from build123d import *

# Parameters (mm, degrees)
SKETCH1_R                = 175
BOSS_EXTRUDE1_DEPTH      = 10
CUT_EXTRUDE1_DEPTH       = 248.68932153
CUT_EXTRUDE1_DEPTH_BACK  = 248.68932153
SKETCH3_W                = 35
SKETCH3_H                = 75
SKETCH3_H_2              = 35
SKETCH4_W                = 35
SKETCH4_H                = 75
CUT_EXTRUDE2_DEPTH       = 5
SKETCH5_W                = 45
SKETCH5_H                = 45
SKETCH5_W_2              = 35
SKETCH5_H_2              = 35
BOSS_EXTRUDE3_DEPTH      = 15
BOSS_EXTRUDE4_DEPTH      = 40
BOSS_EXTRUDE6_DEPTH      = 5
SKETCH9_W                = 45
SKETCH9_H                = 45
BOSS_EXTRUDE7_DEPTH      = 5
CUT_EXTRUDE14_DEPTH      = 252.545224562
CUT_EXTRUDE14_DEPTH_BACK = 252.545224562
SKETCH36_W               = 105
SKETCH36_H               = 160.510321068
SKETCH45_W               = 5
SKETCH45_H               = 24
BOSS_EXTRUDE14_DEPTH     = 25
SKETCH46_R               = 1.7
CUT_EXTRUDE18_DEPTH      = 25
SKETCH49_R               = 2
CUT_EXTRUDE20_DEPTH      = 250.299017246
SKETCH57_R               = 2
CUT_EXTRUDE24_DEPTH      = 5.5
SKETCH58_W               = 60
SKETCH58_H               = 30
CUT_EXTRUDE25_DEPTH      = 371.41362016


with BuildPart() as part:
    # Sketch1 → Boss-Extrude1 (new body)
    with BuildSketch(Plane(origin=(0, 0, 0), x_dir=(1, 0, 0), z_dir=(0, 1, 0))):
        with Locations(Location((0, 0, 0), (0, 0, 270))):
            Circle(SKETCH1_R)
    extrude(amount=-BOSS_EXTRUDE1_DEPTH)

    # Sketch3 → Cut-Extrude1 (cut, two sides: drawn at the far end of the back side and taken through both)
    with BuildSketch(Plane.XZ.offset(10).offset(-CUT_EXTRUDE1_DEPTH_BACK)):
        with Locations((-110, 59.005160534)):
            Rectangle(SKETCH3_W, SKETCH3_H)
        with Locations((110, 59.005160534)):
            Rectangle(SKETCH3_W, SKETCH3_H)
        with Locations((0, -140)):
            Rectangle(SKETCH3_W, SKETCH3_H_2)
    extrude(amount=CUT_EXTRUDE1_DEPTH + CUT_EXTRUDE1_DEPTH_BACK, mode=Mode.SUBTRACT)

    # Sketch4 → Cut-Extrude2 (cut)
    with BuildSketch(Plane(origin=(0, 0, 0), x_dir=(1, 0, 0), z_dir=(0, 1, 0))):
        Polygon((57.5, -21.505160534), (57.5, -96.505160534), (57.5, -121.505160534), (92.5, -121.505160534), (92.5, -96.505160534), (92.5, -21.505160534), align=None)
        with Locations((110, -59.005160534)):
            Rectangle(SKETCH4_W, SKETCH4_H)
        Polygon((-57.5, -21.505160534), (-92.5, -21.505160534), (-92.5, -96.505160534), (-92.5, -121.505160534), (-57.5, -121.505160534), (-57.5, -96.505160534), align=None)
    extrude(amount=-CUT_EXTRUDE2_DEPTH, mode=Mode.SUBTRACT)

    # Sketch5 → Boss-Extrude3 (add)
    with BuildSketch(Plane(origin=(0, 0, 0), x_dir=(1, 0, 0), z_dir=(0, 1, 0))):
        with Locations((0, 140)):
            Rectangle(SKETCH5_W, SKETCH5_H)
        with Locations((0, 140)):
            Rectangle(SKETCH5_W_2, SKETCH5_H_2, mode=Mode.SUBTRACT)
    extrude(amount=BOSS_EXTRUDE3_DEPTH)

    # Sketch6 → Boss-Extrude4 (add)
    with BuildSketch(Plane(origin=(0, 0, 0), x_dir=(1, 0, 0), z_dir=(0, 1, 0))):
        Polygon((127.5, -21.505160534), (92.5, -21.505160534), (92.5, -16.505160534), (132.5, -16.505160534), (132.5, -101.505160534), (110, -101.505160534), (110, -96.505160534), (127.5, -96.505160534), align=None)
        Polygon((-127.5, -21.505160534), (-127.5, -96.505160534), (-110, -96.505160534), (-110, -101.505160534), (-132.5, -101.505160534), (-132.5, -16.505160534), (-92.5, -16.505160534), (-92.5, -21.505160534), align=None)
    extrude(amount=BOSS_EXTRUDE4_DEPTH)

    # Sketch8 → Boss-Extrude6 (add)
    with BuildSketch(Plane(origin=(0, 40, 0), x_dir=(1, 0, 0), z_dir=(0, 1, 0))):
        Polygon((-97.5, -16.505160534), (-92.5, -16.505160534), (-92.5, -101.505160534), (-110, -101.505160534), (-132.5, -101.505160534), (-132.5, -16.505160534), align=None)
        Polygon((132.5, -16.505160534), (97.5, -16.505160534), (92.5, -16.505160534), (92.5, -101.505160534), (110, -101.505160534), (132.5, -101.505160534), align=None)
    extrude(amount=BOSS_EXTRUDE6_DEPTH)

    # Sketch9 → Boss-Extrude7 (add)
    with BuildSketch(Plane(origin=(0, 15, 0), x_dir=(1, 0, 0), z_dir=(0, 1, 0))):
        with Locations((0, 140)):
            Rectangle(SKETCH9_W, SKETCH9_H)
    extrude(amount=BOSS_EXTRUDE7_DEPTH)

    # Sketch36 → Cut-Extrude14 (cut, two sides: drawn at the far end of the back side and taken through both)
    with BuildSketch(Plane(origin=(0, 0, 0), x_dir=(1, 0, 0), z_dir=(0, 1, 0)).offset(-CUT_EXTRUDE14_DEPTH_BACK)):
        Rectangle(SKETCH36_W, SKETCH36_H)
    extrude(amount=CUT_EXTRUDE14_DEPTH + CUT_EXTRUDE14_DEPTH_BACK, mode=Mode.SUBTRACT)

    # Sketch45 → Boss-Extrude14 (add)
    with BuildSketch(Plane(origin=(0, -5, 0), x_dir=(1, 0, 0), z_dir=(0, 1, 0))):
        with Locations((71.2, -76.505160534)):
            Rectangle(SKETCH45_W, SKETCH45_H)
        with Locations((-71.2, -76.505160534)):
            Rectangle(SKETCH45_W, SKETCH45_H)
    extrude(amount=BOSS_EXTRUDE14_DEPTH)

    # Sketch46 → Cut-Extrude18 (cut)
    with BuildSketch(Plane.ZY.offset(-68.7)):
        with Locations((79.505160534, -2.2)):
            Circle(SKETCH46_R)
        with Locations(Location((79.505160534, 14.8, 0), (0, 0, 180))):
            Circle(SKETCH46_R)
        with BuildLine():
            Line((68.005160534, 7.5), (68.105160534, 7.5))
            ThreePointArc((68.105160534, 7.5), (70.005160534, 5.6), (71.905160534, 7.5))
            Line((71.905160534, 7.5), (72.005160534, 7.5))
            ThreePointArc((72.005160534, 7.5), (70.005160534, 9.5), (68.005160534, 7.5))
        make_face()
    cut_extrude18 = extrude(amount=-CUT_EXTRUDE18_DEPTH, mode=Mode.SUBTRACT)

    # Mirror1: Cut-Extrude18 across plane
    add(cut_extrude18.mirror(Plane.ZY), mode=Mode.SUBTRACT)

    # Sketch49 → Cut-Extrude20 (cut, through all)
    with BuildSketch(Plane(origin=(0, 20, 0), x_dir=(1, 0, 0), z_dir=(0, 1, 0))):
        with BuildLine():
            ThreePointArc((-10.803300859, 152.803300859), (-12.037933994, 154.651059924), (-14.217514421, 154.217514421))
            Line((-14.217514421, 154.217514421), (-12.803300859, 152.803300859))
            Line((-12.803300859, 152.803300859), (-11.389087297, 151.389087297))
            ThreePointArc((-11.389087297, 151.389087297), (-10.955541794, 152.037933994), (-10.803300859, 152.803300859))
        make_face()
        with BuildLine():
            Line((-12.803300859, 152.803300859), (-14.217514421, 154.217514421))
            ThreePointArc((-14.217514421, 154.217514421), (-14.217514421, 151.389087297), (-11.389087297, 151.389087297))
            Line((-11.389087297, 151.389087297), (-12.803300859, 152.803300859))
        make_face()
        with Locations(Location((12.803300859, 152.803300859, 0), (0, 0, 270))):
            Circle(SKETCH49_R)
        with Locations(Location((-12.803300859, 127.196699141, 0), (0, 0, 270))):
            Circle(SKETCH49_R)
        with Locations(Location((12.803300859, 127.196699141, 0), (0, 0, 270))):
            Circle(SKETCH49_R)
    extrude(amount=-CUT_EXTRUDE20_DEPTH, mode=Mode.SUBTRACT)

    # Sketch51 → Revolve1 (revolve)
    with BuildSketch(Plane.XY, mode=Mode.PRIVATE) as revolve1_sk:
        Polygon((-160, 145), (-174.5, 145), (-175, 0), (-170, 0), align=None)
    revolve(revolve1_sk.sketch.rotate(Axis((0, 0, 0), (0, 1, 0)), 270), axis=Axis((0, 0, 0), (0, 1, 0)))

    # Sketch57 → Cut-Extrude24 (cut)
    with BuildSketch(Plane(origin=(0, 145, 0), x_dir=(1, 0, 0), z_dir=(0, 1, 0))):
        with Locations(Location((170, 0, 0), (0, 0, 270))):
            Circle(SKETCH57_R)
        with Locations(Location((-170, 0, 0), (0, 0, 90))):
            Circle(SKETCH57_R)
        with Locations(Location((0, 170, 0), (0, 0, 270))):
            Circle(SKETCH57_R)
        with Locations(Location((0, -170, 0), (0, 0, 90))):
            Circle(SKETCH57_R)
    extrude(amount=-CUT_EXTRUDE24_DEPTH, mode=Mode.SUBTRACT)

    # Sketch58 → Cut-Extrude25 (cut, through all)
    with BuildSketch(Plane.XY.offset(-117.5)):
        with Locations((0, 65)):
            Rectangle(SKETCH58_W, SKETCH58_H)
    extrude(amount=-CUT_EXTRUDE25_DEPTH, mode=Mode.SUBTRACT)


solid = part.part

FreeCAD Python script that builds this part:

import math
import FreeCAD as App
import Part
import Sketcher
from FreeCAD import Vector

doc = App.newDocument("Part")
body = doc.addObject("PartDesign::Body", "Body")

sketch1 = body.newObject("Sketcher::SketchObject", "Sketch")
sketch1.AttachmentSupport = (doc.getObject("XZ_Plane"), [""])
sketch1.MapMode = "FlatFace"
sketch1.addGeometry(Part.Circle(Vector(0, 0, 0), Vector(0, 0, 1), 175), False)
sketch1.addConstraint(Sketcher.Constraint("Coincident", 0, 3, -1, 1))
sketch1.addConstraint(Sketcher.Constraint("Diameter", 0, 350.0))
pad1 = body.newObject("PartDesign::Pad", "Pad")
pad1.Profile = sketch1
pad1.Length = 10

sketch2 = body.newObject("Sketcher::SketchObject", "Sketch001")
sketch2.AttachmentSupport = (doc.getObject("XZ_Plane"), [""])
sketch2.MapMode = "FlatFace"
sketch2.AttachmentOffset = App.Placement(Vector(0, 0, 10), App.Rotation())
sketch2.addGeometry(Part.LineSegment(Vector(-127.5, 96.505161, 0), Vector(-127.5, 21.505161, 0)), False)
sketch2.addGeometry(Part.LineSegment(Vector(-127.5, 21.505161, 0), Vector(-92.5, 21.505161, 0)), False)
sketch2.addGeometry(Part.LineSegment(Vector(-92.5, 21.505161, 0), Vector(-92.5, 96.505161, 0)), False)
sketch2.addGeometry(Part.LineSegment(Vector(-92.5, 96.505161, 0), Vector(-127.5, 96.505161, 0)), False)
sketch2.addGeometry(Part.LineSegment(Vector(92.5, 96.505161, 0), Vector(92.5, 21.505161, 0)), False)
sketch2.addGeometry(Part.LineSegment(Vector(92.5, 21.505161, 0), Vector(127.5, 21.505161, 0)), False)
sketch2.addGeometry(Part.LineSegment(Vector(127.5, 21.505161, 0), Vector(127.5, 96.505161, 0)), False)
sketch2.addGeometry(Part.LineSegment(Vector(127.5, 96.505161, 0), Vector(92.5, 96.505161, 0)), False)
sketch2.addGeometry(Part.LineSegment(Vector(-17.5, -122.5, 0), Vector(-17.5, -157.5, 0)), False)
sketch2.addGeometry(Part.LineSegment(Vector(-17.5, -157.5, 0), Vector(17.5, -157.5, 0)), False)
sketch2.addGeometry(Part.LineSegment(Vector(17.5, -157.5, 0), Vector(17.5, -122.5, 0)), False)
sketch2.addGeometry(Part.LineSegment(Vector(17.5, -122.5, 0), Vector(-17.5, -122.5, 0)), False)
sketch2.addConstraint(Sketcher.Constraint("Coincident", 0, 2, 1, 1))
sketch2.addConstraint(Sketcher.Constraint("Coincident", 1, 2, 2, 1))
sketch2.addConstraint(Sketcher.Constraint("Coincident", 2, 2, 3, 1))
sketch2.addConstraint(Sketcher.Constraint("Coincident", 3, 2, 0, 1))
sketch2.addConstraint(Sketcher.Constraint("Coincident", 4, 2, 5, 1))
sketch2.addConstraint(Sketcher.Constraint("Coincident", 5, 2, 6, 1))
sketch2.addConstraint(Sketcher.Constraint("Coincident", 6, 2, 7, 1))
sketch2.addConstraint(Sketcher.Constraint("Coincident", 7, 2, 4, 1))
sketch2.addConstraint(Sketcher.Constraint("Coincident", 8, 2, 9, 1))
sketch2.addConstraint(Sketcher.Constraint("Coincident", 9, 2, 10, 1))
sketch2.addConstraint(Sketcher.Constraint("Coincident", 10, 2, 11, 1))
sketch2.addConstraint(Sketcher.Constraint("Coincident", 11, 2, 8, 1))
sketch2.addConstraint(Sketcher.Constraint("Vertical", 0))
sketch2.addConstraint(Sketcher.Constraint("Horizontal", 1))
sketch2.addConstraint(Sketcher.Constraint("Vertical", 2))
sketch2.addConstraint(Sketcher.Constraint("Horizontal", 3))
sketch2.addConstraint(Sketcher.Constraint("Vertical", 4))
sketch2.addConstraint(Sketcher.Constraint("Horizontal", 5))
sketch2.addConstraint(Sketcher.Constraint("Vertical", 6))
sketch2.addConstraint(Sketcher.Constraint("Horizontal", 7))
sketch2.addConstraint(Sketcher.Constraint("Vertical", 8))
sketch2.addConstraint(Sketcher.Constraint("Horizontal", 9))
sketch2.addConstraint(Sketcher.Constraint("Vertical", 10))
sketch2.addConstraint(Sketcher.Constraint("Horizontal", 11))
sketch2.addConstraint(Sketcher.Constraint("Symmetric", 1, 2, 4, 2, -2))
sketch2.addConstraint(Sketcher.Constraint("Symmetric", 3, 2, 6, 2, -2))
sketch2.addConstraint(Sketcher.Constraint("Equal", 7, 9))
sketch2.addConstraint(Sketcher.Constraint("Equal", 11, 8))
sketch2.addConstraint(Sketcher.Constraint("DistanceX", 1, 1, 1, 2, 35.0))
sketch2.addConstraint(Sketcher.Constraint("DistanceY", 0, 2, 0, 1, 75.0))
sketch2.addConstraint(Sketcher.Constraint("DistanceX", 1, 2, 4, 2, 185.0))
sketch2.addConstraint(Sketcher.Constraint("DistanceX", 1, 2, 8, 2, 75.0))
sketch2.addConstraint(Sketcher.Constraint("DistanceY", 8, 2, -1, 1, 157.5))
sketch2.addConstraint(Sketcher.Constraint("DistanceY", -1, 1, 0, 2, 21.505161))
pocket1 = body.newObject("PartDesign::Pocket", "Pocket")
pocket1.Profile = sketch2
pocket1.Type = "ThroughAll"
pocket1.Midplane = True

sketch3 = body.newObject("Sketcher::SketchObject", "Sketch002")
sketch3.AttachmentSupport = (doc.getObject("XZ_Plane"), [""])
sketch3.MapMode = "FlatFace"
sketch3.addGeometry(Part.LineSegment(Vector(57.5, 21.505161, 0), Vector(57.5, 121.505161, 0)), False)
sketch3.addGeometry(Part.LineSegment(Vector(57.5, 121.505161, 0), Vector(92.5, 121.505161, 0)), False)
sketch3.addGeometry(Part.LineSegment(Vector(92.5, 121.505161, 0), Vector(92.5, 96.505161, 0)), False)
sketch3.addGeometry(Part.LineSegment(Vector(92.5, 96.505161, 0), Vector(127.5, 96.505161, 0)), False)
sketch3.addGeometry(Part.LineSegment(Vector(127.5, 96.505161, 0), Vector(127.5, 21.505161, 0)), False)
sketch3.addGeometry(Part.LineSegment(Vector(127.5, 21.505161, 0), Vector(57.5, 21.505161, 0)), False)
sketch3.addGeometry(Part.LineSegment(Vector(-57.5, 21.505161, 0), Vector(-92.5, 21.505161, 0)), False)
sketch3.addGeometry(Part.LineSegment(Vector(-92.5, 21.505161, 0), Vector(-92.5, 121.505161, 0)), False)
sketch3.addGeometry(Part.LineSegment(Vector(-92.5, 121.505161, 0), Vector(-57.5, 121.505161, 0)), False)
sketch3.addGeometry(Part.LineSegment(Vector(-57.5, 121.505161, 0), Vector(-57.5, 21.505161, 0)), False)
sketch3.addConstraint(Sketcher.Constraint("Coincident", 0, 2, 1, 1))
sketch3.addConstraint(Sketcher.Constraint("Coincident", 1, 2, 2, 1))
sketch3.addConstraint(Sketcher.Constraint("Coincident", 2, 2, 3, 1))
sketch3.addConstraint(Sketcher.Constraint("Coincident", 3, 2, 4, 1))
sketch3.addConstraint(Sketcher.Constraint("Coincident", 4, 2, 5, 1))
sketch3.addConstraint(Sketcher.Constraint("Coincident", 5, 2, 0, 1))
sketch3.addConstraint(Sketcher.Constraint("Coincident", 6, 2, 7, 1))
sketch3.addConstraint(Sketcher.Constraint("Coincident", 7, 2, 8, 1))
sketch3.addConstraint(Sketcher.Constraint("Coincident", 8, 2, 9, 1))
sketch3.addConstraint(Sketcher.Constraint("Coincident", 9, 2, 6, 1))
sketch3.addConstraint(Sketcher.Constraint("Vertical", 0))
sketch3.addConstraint(Sketcher.Constraint("Horizontal", 1))
sketch3.addConstraint(Sketcher.Constraint("Vertical", 2))
sketch3.addConstraint(Sketcher.Constraint("Horizontal", 3))
sketch3.addConstraint(Sketcher.Constraint("Vertical", 4))
sketch3.addConstraint(Sketcher.Constraint("Horizontal", 5))
sketch3.addConstraint(Sketcher.Constraint("Horizontal", 6))
sketch3.addConstraint(Sketcher.Constraint("Vertical", 7))
sketch3.addConstraint(Sketcher.Constraint("Horizontal", 8))
sketch3.addConstraint(Sketcher.Constraint("Vertical", 9))
sketch3.addConstraint(Sketcher.Constraint("Symmetric", 1, 2, 7, 2, -2))
sketch3.addConstraint(Sketcher.Constraint("Symmetric", 5, 2, 9, 2, -2))
sketch3.addConstraint(Sketcher.Constraint("Equal", 1, 3))
sketch3.addConstraint(Sketcher.Constraint("DistanceX", 1, 1, 1, 2, 35.0))
sketch3.addConstraint(Sketcher.Constraint("DistanceY", 0, 1, 0, 2, 100.0))
sketch3.addConstraint(Sketcher.Constraint("DistanceY", 2, 2, 2, 1, 25.0))
sketch3.addConstraint(Sketcher.Constraint("DistanceX", 6, 2, 5, 2, 150.0))
sketch3.addConstraint(Sketcher.Constraint("DistanceY", -1, 1, 0, 2, 121.505161))
pocket2 = body.newObject("PartDesign::Pocket", "Pocket001")
pocket2.Profile = sketch3
pocket2.Length = 5
pocket2.Reversed = True

sketch4 = body.newObject("Sketcher::SketchObject", "Sketch003")
sketch4.AttachmentSupport = (doc.getObject("XZ_Plane"), [""])
sketch4.MapMode = "FlatFace"
sketch4.addGeometry(Part.LineSegment(Vector(-22.5, -162.5, 0), Vector(-22.5, -117.5, 0)), False)
sketch4.addGeometry(Part.LineSegment(Vector(-22.5, -117.5, 0), Vector(22.5, -117.5, 0)), False)
sketch4.addGeometry(Part.LineSegment(Vector(22.5, -117.5, 0), Vector(22.5, -162.5, 0)), False)
sketch4.addGeometry(Part.LineSegment(Vector(22.5, -162.5, 0), Vector(-22.5, -162.5, 0)), False)
sketch4.addGeometry(Part.LineSegment(Vector(17.5, -122.5, 0), Vector(-17.5, -122.5, 0)), False)
sketch4.addGeometry(Part.LineSegment(Vector(-17.5, -122.5, 0), Vector(-17.5, -157.5, 0)), False)
sketch4.addGeometry(Part.LineSegment(Vector(-17.5, -157.5, 0), Vector(17.5, -157.5, 0)), False)
sketch4.addGeometry(Part.LineSegment(Vector(17.5, -157.5, 0), Vector(17.5, -122.5, 0)), False)
sketch4.addConstraint(Sketcher.Constraint("Coincident", 0, 2, 1, 1))
sketch4.addConstraint(Sketcher.Constraint("Coincident", 1, 2, 2, 1))
sketch4.addConstraint(Sketcher.Constraint("Coincident", 2, 2, 3, 1))
sketch4.addConstraint(Sketcher.Constraint("Coincident", 3, 2, 0, 1))
sketch4.addConstraint(Sketcher.Constraint("Coincident", 4, 2, 5, 1))
sketch4.addConstraint(Sketcher.Constraint("Coincident", 5, 2, 6, 1))
sketch4.addConstraint(Sketcher.Constraint("Coincident", 6, 2, 7, 1))
sketch4.addConstraint(Sketcher.Constraint("Coincident", 7, 2, 4, 1))
sketch4.addConstraint(Sketcher.Constraint("Vertical", 0))
sketch4.addConstraint(Sketcher.Constraint("Horizontal", 1))
sketch4.addConstraint(Sketcher.Constraint("Vertical", 2))
sketch4.addConstraint(Sketcher.Constraint("Horizontal", 3))
sketch4.addConstraint(Sketcher.Constraint("Horizontal", 4))
sketch4.addConstraint(Sketcher.Constraint("Vertical", 5))
sketch4.addConstraint(Sketcher.Constraint("Horizontal", 6))
sketch4.addConstraint(Sketcher.Constraint("Vertical", 7))
sketch4.addConstraint(Sketcher.Constraint("Equal", 3, 0))
sketch4.addConstraint(Sketcher.Constraint("Equal", 6, 5))
sketch4.addConstraint(Sketcher.Constraint("DistanceX", 1, 1, 1, 2, 45.0))
sketch4.addConstraint(Sketcher.Constraint("DistanceX", 4, 2, 4, 1, 35.0))
sketch4.addConstraint(Sketcher.Constraint("DistanceX", 0, 2, 4, 2, 5.0))
sketch4.addConstraint(Sketcher.Constraint("DistanceY", 4, 2, 0, 2, 5.0))
sketch4.addConstraint(Sketcher.Constraint("DistanceX", 0, 2, -1, 1, 22.5))
sketch4.addConstraint(Sketcher.Constraint("DistanceY", 0, 2, -1, 1, 117.5))
pad2 = body.newObject("PartDesign::Pad", "Pad001")
pad2.Profile = sketch4
pad2.Length = 15
pad2.Reversed = True

sketch5 = body.newObject("Sketcher::SketchObject", "Sketch004")
sketch5.AttachmentSupport = (doc.getObject("XZ_Plane"), [""])
sketch5.MapMode = "FlatFace"
sketch5.addGeometry(Part.LineSegment(Vector(92.5, 21.505161, 0), Vector(127.5, 21.505161, 0)), False)
sketch5.addGeometry(Part.LineSegment(Vector(127.5, 21.505161, 0), Vector(127.5, 96.505161, 0)), False)
sketch5.addGeometry(Part.LineSegment(Vector(127.5, 96.505161, 0), Vector(110, 96.505161, 0)), False)
sketch5.addGeometry(Part.LineSegment(Vector(110, 96.505161, 0), Vector(110, 101.505161, 0)), False)
sketch5.addGeometry(Part.LineSegment(Vector(110, 101.505161, 0), Vector(132.5, 101.505161, 0)), False)
sketch5.addGeometry(Part.LineSegment(Vector(132.5, 101.505161, 0), Vector(132.5, 16.505161, 0)), False)
sketch5.addGeometry(Part.LineSegment(Vector(132.5, 16.505161, 0), Vector(92.5, 16.505161, 0)), False)
sketch5.addGeometry(Part.LineSegment(Vector(92.5, 16.505161, 0), Vector(92.5, 21.505161, 0)), False)
sketch5.addGeometry(Part.LineSegment(Vector(-127.5, 96.505161, 0), Vector(-127.5, 21.505161, 0)), False)
sketch5.addGeometry(Part.LineSegment(Vector(-127.5, 21.505161, 0), Vector(-92.5, 21.505161, 0)), False)
sketch5.addGeometry(Part.LineSegment(Vector(-92.5, 21.505161, 0), Vector(-92.5, 16.505161, 0)), False)
sketch5.addGeometry(Part.LineSegment(Vector(-92.5, 16.505161, 0), Vector(-132.5, 16.505161, 0)), False)
sketch5.addGeometry(Part.LineSegment(Vector(-132.5, 16.505161, 0), Vector(-132.5, 101.505161, 0)), False)
sketch5.addGeometry(Part.LineSegment(Vector(-132.5, 101.505161, 0), Vector(-110, 101.505161, 0)), False)
sketch5.addGeometry(Part.LineSegment(Vector(-110, 101.505161, 0), Vector(-110, 96.505161, 0)), False)
sketch5.addGeometry(Part.LineSegment(Vector(-110, 96.505161, 0), Vector(-127.5, 96.505161, 0)), False)
sketch5.addConstraint(Sketcher.Constraint("Coincident", 0, 2, 1, 1))
sketch5.addConstraint(Sketcher.Constraint("Coincident", 1, 2, 2, 1))
sketch5.addConstraint(Sketcher.Constraint("Coincident", 2, 2, 3, 1))
sketch5.addConstraint(Sketcher.Constraint("Coincident", 3, 2, 4, 1))
sketch5.addConstraint(Sketcher.Constraint("Coincident", 4, 2, 5, 1))
sketch5.addConstraint(Sketcher.Constraint("Coincident", 5, 2, 6, 1))
sketch5.addConstraint(Sketcher.Constraint("Coincident", 6, 2, 7, 1))
sketch5.addConstraint(Sketcher.Constraint("Coincident", 7, 2, 0, 1))
sketch5.addConstraint(Sketcher.Constraint("Coincident", 8, 2, 9, 1))
sketch5.addConstraint(Sketcher.Constraint("Coincident", 9, 2, 10, 1))
sketch5.addConstraint(Sketcher.Constraint("Coincident", 10, 2, 11, 1))
sketch5.addConstraint(Sketcher.Constraint("Coincident", 11, 2, 12, 1))
sketch5.addConstraint(Sketcher.Constraint("Coincident", 12, 2, 13, 1))
sketch5.addConstraint(Sketcher.Constraint("Coincident", 13, 2, 14, 1))
sketch5.addConstraint(Sketcher.Constraint("Coincident", 14, 2, 15, 1))
sketch5.addConstraint(Sketcher.Constraint("Coincident", 15, 2, 8, 1))
sketch5.addConstraint(Sketcher.Constraint("Horizontal", 0))
sketch5.addConstraint(Sketcher.Constraint("Vertical", 1))
sketch5.addConstraint(Sketcher.Constraint("Horizontal", 2))
sketch5.addConstraint(Sketcher.Constraint("Vertical", 3))
sketch5.addConstraint(Sketcher.Constraint("Horizontal", 4))
sketch5.addConstraint(Sketcher.Constraint("Vertical", 5))
sketch5.addConstraint(Sketcher.Constraint("Horizontal", 6))
sketch5.addConstraint(Sketcher.Constraint("Vertical", 7))
sketch5.addConstraint(Sketcher.Constraint("Vertical", 8))
sketch5.addConstraint(Sketcher.Constraint("Horizontal", 9))
sketch5.addConstraint(Sketcher.Constraint("Vertical", 10))
sketch5.addConstraint(Sketcher.Constraint("Horizontal", 11))
sketch5.addConstraint(Sketcher.Constraint("Vertical", 12))
sketch5.addConstraint(Sketcher.Constraint("Horizontal", 13))
sketch5.addConstraint(Sketcher.Constraint("Vertical", 14))
sketch5.addConstraint(Sketcher.Constraint("Horizontal", 15))
sketch5.addConstraint(Sketcher.Constraint("Symmetric", 0, 2, 8, 2, -2))
sketch5.addConstraint(Sketcher.Constraint("Symmetric", 6, 2, 10, 2, -2))
sketch5.addConstraint(Sketcher.Constraint("Symmetric", 4, 2, 12, 2, -2))
sketch5.addConstraint(Sketcher.Constraint("Symmetric", 2, 2, 14, 2, -2))
sketch5.addConstraint(Sketcher.Constraint("Equal", 3, 7))
sketch5.addConstraint(Sketcher.Constraint("DistanceX", 0, 1, 0, 2, 35.0))
sketch5.addConstraint(Sketcher.Constraint("DistanceX", 6, 2, 6, 1, 40.0))
sketch5.addConstraint(Sketcher.Constraint("DistanceY", 1, 1, 1, 2, 75.0))
sketch5.addConstraint(Sketcher.Constraint("DistanceY", 3, 1, 3, 2, 5.0))
sketch5.addConstraint(Sketcher.Constraint("DistanceX", 2, 2, 2, 1, 17.5))
sketch5.addConstraint(Sketcher.Constraint("DistanceX", -1, 1, 2, 2, 110.0))
sketch5.addConstraint(Sketcher.Constraint("DistanceY", -1, 1, 0, 2, 21.505161))
pad3 = body.newObject("PartDesign::Pad", "Pad002")
pad3.Profile = sketch5
pad3.Length = 40
pad3.Reversed = True

sketch6 = body.newObject("Sketcher::SketchObject", "Sketch005")
sketch6.AttachmentSupport = (doc.getObject("XZ_Plane"), [""])
sketch6.MapMode = "FlatFace"
sketch6.AttachmentOffset = App.Placement(Vector(0, 0, -40), App.Rotation())
sketch6.addGeometry(Part.LineSegment(Vector(-92.5, 16.505161, 0), Vector(-132.5, 16.505161, 0)), False)
sketch6.addGeometry(Part.LineSegment(Vector(-132.5, 16.505161, 0), Vector(-132.5, 101.505161, 0)), False)
sketch6.addGeometry(Part.LineSegment(Vector(-132.5, 101.505161, 0), Vector(-92.5, 101.505161, 0)), False)
sketch6.addGeometry(Part.LineSegment(Vector(-92.5, 101.505161, 0), Vector(-92.5, 16.505161, 0)), False)
sketch6.addGeometry(Part.LineSegment(Vector(132.5, 16.505161, 0), Vector(92.5, 16.505161, 0)), False)
sketch6.addGeometry(Part.LineSegment(Vector(92.5, 16.505161, 0), Vector(92.5, 101.505161, 0)), False)
sketch6.addGeometry(Part.LineSegment(Vector(92.5, 101.505161, 0), Vector(132.5, 101.505161, 0)), False)
sketch6.addGeometry(Part.LineSegment(Vector(132.5, 101.505161, 0), Vector(132.5, 16.505161, 0)), False)
sketch6.addConstraint(Sketcher.Constraint("Coincident", 0, 2, 1, 1))
sketch6.addConstraint(Sketcher.Constraint("Coincident", 1, 2, 2, 1))
sketch6.addConstraint(Sketcher.Constraint("Coincident", 2, 2, 3, 1))
sketch6.addConstraint(Sketcher.Constraint("Coincident", 3, 2, 0, 1))
sketch6.addConstraint(Sketcher.Constraint("Coincident", 4, 2, 5, 1))
sketch6.addConstraint(Sketcher.Constraint("Coincident", 5, 2, 6, 1))
sketch6.addConstraint(Sketcher.Constraint("Coincident", 6, 2, 7, 1))
sketch6.addConstraint(Sketcher.Constraint("Coincident", 7, 2, 4, 1))
sketch6.addConstraint(Sketcher.Constraint("Horizontal", 0))
sketch6.addConstraint(Sketcher.Constraint("Vertical", 1))
sketch6.addConstraint(Sketcher.Constraint("Horizontal", 2))
sketch6.addConstraint(Sketcher.Constraint("Vertical", 3))
sketch6.addConstraint(Sketcher.Constraint("Horizontal", 4))
sketch6.addConstraint(Sketcher.Constraint("Vertical", 5))
sketch6.addConstraint(Sketcher.Constraint("Horizontal", 6))
sketch6.addConstraint(Sketcher.Constraint("Vertical", 7))
sketch6.addConstraint(Sketcher.Constraint("Symmetric", 3, 2, 4, 2, -2))
sketch6.addConstraint(Sketcher.Constraint("Symmetric", 1, 2, 6, 2, -2))
sketch6.addConstraint(Sketcher.Constraint("DistanceX", 0, 2, 0, 1, 40.0))
sketch6.addConstraint(Sketcher.Constraint("DistanceY", 1, 1, 1, 2, 85.0))
sketch6.addConstraint(Sketcher.Constraint("DistanceX", 3, 2, 4, 2, 185.0))
sketch6.addConstraint(Sketcher.Constraint("DistanceY", -1, 1, 0, 2, 16.505161))
pad4 = body.newObject("PartDesign::Pad", "Pad003")
pad4.Profile = sketch6
pad4.Length = 5
pad4.Reversed = True

sketch7 = body.newObject("Sketcher::SketchObject", "Sketch006")
sketch7.AttachmentSupport = (doc.getObject("XZ_Plane"), [""])
sketch7.MapMode = "FlatFace"
sketch7.AttachmentOffset = App.Placement(Vector(0, 0, -15), App.Rotation())
sketch7.addGeometry(Part.LineSegment(Vector(-22.5, -162.5, 0), Vector(-22.5, -117.5, 0)), False)
sketch7.addGeometry(Part.LineSegment(Vector(-22.5, -117.5, 0), Vector(22.5, -117.5, 0)), False)
sketch7.addGeometry(Part.LineSegment(Vector(22.5, -117.5, 0), Vector(22.5, -162.5, 0)), False)
sketch7.addGeometry(Part.LineSegment(Vector(22.5, -162.5, 0), Vector(-22.5, -162.5, 0)), False)
sketch7.addConstraint(Sketcher.Constraint("Coincident", 0, 2, 1, 1))
sketch7.addConstraint(Sketcher.Constraint("Coincident", 1, 2, 2, 1))
sketch7.addConstraint(Sketcher.Constraint("Coincident", 2, 2, 3, 1))
sketch7.addConstraint(Sketcher.Constraint("Coincident", 3, 2, 0, 1))
sketch7.addConstraint(Sketcher.Constraint("Vertical", 0))
sketch7.addConstraint(Sketcher.Constraint("Horizontal", 1))
sketch7.addConstraint(Sketcher.Constraint("Vertical", 2))
sketch7.addConstraint(Sketcher.Constraint("Horizontal", 3))
sketch7.addConstraint(Sketcher.Constraint("Equal", 3, 0))
sketch7.addConstraint(Sketcher.Constraint("DistanceX", 1, 1, 1, 2, 45.0))
sketch7.addConstraint(Sketcher.Constraint("DistanceX", 0, 2, -1, 1, 22.5))
sketch7.addConstraint(Sketcher.Constraint("DistanceY", 0, 2, -1, 1, 117.5))
pad5 = body.newObject("PartDesign::Pad", "Pad004")
pad5.Profile = sketch7
pad5.Length = 5
pad5.Reversed = True

sketch8 = body.newObject("Sketcher::SketchObject", "Sketch007")
sketch8.AttachmentSupport = (doc.getObject("XZ_Plane"), [""])
sketch8.MapMode = "FlatFace"
sketch8.addGeometry(Part.LineSegment(Vector(-52.5, -80.255161, 0), Vector(-52.5, 80.255161, 0)), False)
sketch8.addGeometry(Part.LineSegment(Vector(-52.5, 80.255161, 0), Vector(52.5, 80.255161, 0)), False)
sketch8.addGeometry(Part.LineSegment(Vector(52.5, 80.255161, 0), Vector(52.5, -80.255161, 0)), False)
sketch8.addGeometry(Part.LineSegment(Vector(52.5, -80.255161, 0), Vector(-52.5, -80.255161, 0)), False)
sketch8.addConstraint(Sketcher.Constraint("Coincident", 0, 2, 1, 1))
sketch8.addConstraint(Sketcher.Constraint("Coincident", 1, 2, 2, 1))
sketch8.addConstraint(Sketcher.Constraint("Coincident", 2, 2, 3, 1))
sketch8.addConstraint(Sketcher.Constraint("Coincident", 3, 2, 0, 1))
sketch8.addConstraint(Sketcher.Constraint("Vertical", 0))
sketch8.addConstraint(Sketcher.Constraint("Horizontal", 1))
sketch8.addConstraint(Sketcher.Constraint("Vertical", 2))
sketch8.addConstraint(Sketcher.Constraint("Horizontal", 3))
sketch8.addConstraint(Sketcher.Constraint("Symmetric", 0, 2, 2, 2, -1, 1))
sketch8.addConstraint(Sketcher.Constraint("DistanceX", 1, 1, 1, 2, 105.0))
sketch8.addConstraint(Sketcher.Constraint("DistanceY", 0, 1, 0, 2, 160.510321))
pocket3 = body.newObject("PartDesign::Pocket", "Pocket002")
pocket3.Profile = sketch8
pocket3.Type = "ThroughAll"
pocket3.Midplane = True

sketch9 = body.newObject("Sketcher::SketchObject", "Sketch008")
sketch9.AttachmentSupport = (doc.getObject("XZ_Plane"), [""])
sketch9.MapMode = "FlatFace"
sketch9.AttachmentOffset = App.Placement(Vector(0, 0, 5), App.Rotation())
sketch9.addGeometry(Part.LineSegment(Vector(68.7, 64.505161, 0), Vector(68.7, 88.505161, 0)), False)
sketch9.addGeometry(Part.LineSegment(Vector(68.7, 88.505161, 0), Vector(73.7, 88.505161, 0)), False)
sketch9.addGeometry(Part.LineSegment(Vector(73.7, 88.505161, 0), Vector(73.7, 64.505161, 0)), False)
sketch9.addGeometry(Part.LineSegment(Vector(73.7, 64.505161, 0), Vector(68.7, 64.505161, 0)), False)
sketch9.addGeometry(Part.LineSegment(Vector(-73.7, 64.505161, 0), Vector(-73.7, 88.505161, 0)), False)
sketch9.addGeometry(Part.LineSegment(Vector(-73.7, 88.505161, 0), Vector(-68.7, 88.505161, 0)), False)
sketch9.addGeometry(Part.LineSegment(Vector(-68.7, 88.505161, 0), Vector(-68.7, 64.505161, 0)), False)
sketch9.addGeometry(Part.LineSegment(Vector(-68.7, 64.505161, 0), Vector(-73.7, 64.505161, 0)), False)
sketch9.addConstraint(Sketcher.Constraint("Coincident", 0, 2, 1, 1))
sketch9.addConstraint(Sketcher.Constraint("Coincident", 1, 2, 2, 1))
sketch9.addConstraint(Sketcher.Constraint("Coincident", 2, 2, 3, 1))
sketch9.addConstraint(Sketcher.Constraint("Coincident", 3, 2, 0, 1))
sketch9.addConstraint(Sketcher.Constraint("Coincident", 4, 2, 5, 1))
sketch9.addConstraint(Sketcher.Constraint("Coincident", 5, 2, 6, 1))
sketch9.addConstraint(Sketcher.Constraint("Coincident", 6, 2, 7, 1))
sketch9.addConstraint(Sketcher.Constraint("Coincident", 7, 2, 4, 1))
sketch9.addConstraint(Sketcher.Constraint("Vertical", 0))
sketch9.addConstraint(Sketcher.Constraint("Horizontal", 1))
sketch9.addConstraint(Sketcher.Constraint("Vertical", 2))
sketch9.addConstraint(Sketcher.Constraint("Horizontal", 3))
sketch9.addConstraint(Sketcher.Constraint("Vertical", 4))
sketch9.addConstraint(Sketcher.Constraint("Horizontal", 5))
sketch9.addConstraint(Sketcher.Constraint("Vertical", 6))
sketch9.addConstraint(Sketcher.Constraint("Horizontal", 7))
sketch9.addConstraint(Sketcher.Constraint("Symmetric", 1, 2, 4, 2, -2))
sketch9.addConstraint(Sketcher.Constraint("Symmetric", 3, 2, 6, 2, -2))
sketch9.addConstraint(Sketcher.Constraint("DistanceX", 1, 1, 1, 2, 5.0))
sketch9.addConstraint(Sketcher.Constraint("DistanceY", 0, 1, 0, 2, 24.0))
sketch9.addConstraint(Sketcher.Constraint("DistanceX", -1, 1, 0, 2, 68.7))
sketch9.addConstraint(Sketcher.Constraint("DistanceY", -1, 1, 0, 2, 88.505161))
pad6 = body.newObject("PartDesign::Pad", "Pad005")
pad6.Profile = sketch9
pad6.Length = 25
pad6.Reversed = True

sketch10 = body.newObject("Sketcher::SketchObject", "Sketch009")
sketch10.AttachmentSupport = (doc.getObject("YZ_Plane"), [""])
sketch10.MapMode = "FlatFace"
sketch10.AttachmentOffset = App.Placement(Vector(0, 0, 68.7), App.Rotation())
sketch10.addGeometry(Part.Circle(Vector(-2.2, 79.505161, 0), Vector(0, 0, 1), 1.7), False)
sketch10.addGeometry(Part.Circle(Vector(14.8, 79.505161, 0), Vector(0, 0, 1), 1.7), False)
sketch10.addGeometry(Part.LineSegment(Vector(7.5, 68.005161, 0), Vector(7.5, 68.105161, 0)), False)
sketch10.addGeometry(Part.ArcOfCircle(Part.Circle(Vector(7.5, 70.005161, 0), Vector(0, 0, 1), 1.9), math.radians(90), math.radians(270)), False)
sketch10.addGeometry(Part.LineSegment(Vector(7.5, 71.905161, 0), Vector(7.5, 72.005161, 0)), False)
sketch10.addGeometry(Part.ArcOfCircle(Part.Circle(Vector(7.5, 70.005161, 0), Vector(0, 0, 1), 2), math.radians(-90), math.radians(90)), False)
sketch10.addConstraint(Sketcher.Constraint("Coincident", 2, 2, 3, 2))
sketch10.addConstraint(Sketcher.Constraint("Coincident", 3, 1, 4, 1))
sketch10.addConstraint(Sketcher.Constraint("Coincident", 4, 2, 5, 2))
sketch10.addConstraint(Sketcher.Constraint("Coincident", 5, 1, 2, 1))
sketch10.addConstraint(Sketcher.Constraint("Vertical", 2))
sketch10.addConstraint(Sketcher.Constraint("Vertical", 4))
sketch10.addConstraint(Sketcher.Constraint("Coincident", 5, 3, 3, 3))
sketch10.addConstraint(Sketcher.Constraint("Equal", 0, 1))
sketch10.addConstraint(Sketcher.Constraint("Horizontal", 0, 3, 1, 3))
sketch10.addConstraint(Sketcher.Constraint("Vertical", 5, 3, 2, 2))
sketch10.addConstraint(Sketcher.Constraint("Vertical", 2, 2, 3, 1))
sketch10.addConstraint(Sketcher.Constraint("Radius", 5, 2.0))
sketch10.addConstraint(Sketcher.Constraint("Diameter", 0, 3.4))
sketch10.addConstraint(Sketcher.Constraint("Radius", 3, 1.9))
sketch10.addConstraint(Sketcher.Constraint("DistanceX", 0, 3, 1, 3, 17.0))
sketch10.addConstraint(Sketcher.Constraint("DistanceX", 0, 3, -1, 1, 2.2))
sketch10.addConstraint(Sketcher.Constraint("DistanceX", -1, 1, 3, 3, 7.5))
sketch10.addConstraint(Sketcher.Constraint("DistanceY", 3, 3, 1, 3, 9.5))
sketch10.addConstraint(Sketcher.Constraint("DistanceY", -1, 1, 0, 3, 79.505161))
pocket4 = body.newObject("PartDesign::Pocket", "Pocket003")
pocket4.Profile = sketch10
pocket4.Length = 25
pocket4.Reversed = True
doc.recompute()

mirrored = body.newObject("PartDesign::Mirrored", "Mirrored")
mirrored.Originals = [pocket4]
mirrored.MirrorPlane = (doc.getObject("YZ_Plane"), [""])
body.Tip = mirrored

sketch11 = body.newObject("Sketcher::SketchObject", "Sketch010")
sketch11.AttachmentSupport = (doc.getObject("XZ_Plane"), [""])
sketch11.MapMode = "FlatFace"
sketch11.AttachmentOffset = App.Placement(Vector(0, 0, -20), App.Rotation())
sketch11.addGeometry(Part.ArcOfCircle(Part.Circle(Vector(-12.803301, -152.803301, 0), Vector(0, 0, 1), 2), math.radians(-135), math.radians(0)), False)
sketch11.addGeometry(Part.ArcOfCircle(Part.Circle(Vector(-12.803301, -152.803301, 0), Vector(0, 0, 1), 2), math.radians(45), math.radians(225)), False)
sketch11.addGeometry(Part.ArcOfCircle(Part.Circle(Vector(-12.803301, -152.803301, 0), Vector(0, 0, 1), 2), math.radians(0), math.radians(45)), False)
sketch11.addGeometry(Part.Circle(Vector(12.803301, -152.803301, 0), Vector(0, 0, 1), 2), False)
sketch11.addGeometry(Part.Circle(Vector(-12.803301, -127.196699, 0), Vector(0, 0, 1), 2), False)
sketch11.addGeometry(Part.Circle(Vector(12.803301, -127.196699, 0), Vector(0, 0, 1), 2), False)
sketch11.addConstraint(Sketcher.Constraint("Tangent", 0, 1, 1, 2))
sketch11.addConstraint(Sketcher.Constraint("Tangent", 1, 1, 2, 2))
sketch11.addConstraint(Sketcher.Constraint("Tangent", 2, 1, 0, 2))
sketch11.addConstraint(Sketcher.Constraint("Equal", 2, 3))
sketch11.addConstraint(Sketcher.Constraint("Equal", 3, 4))
sketch11.addConstraint(Sketcher.Constraint("Equal", 4, 5))
sketch11.addConstraint(Sketcher.Constraint("Symmetric", 0, 3, 3, 3, -2))
sketch11.addConstraint(Sketcher.Constraint("Symmetric", 4, 3, 5, 3, -2))
sketch11.addConstraint(Sketcher.Constraint("Horizontal", 3, 3, 2, 1))
sketch11.addConstraint(Sketcher.Constraint("Vertical", 2, 3, 4, 3))
sketch11.addConstraint(Sketcher.Constraint("Diameter", 3, 4.0))
sketch11.addConstraint(Sketcher.Constraint("DistanceX", 0, 3, -1, 1, 12.803301))
sketch11.addConstraint(Sketcher.Constraint("DistanceY", 0, 3, -1, 1, 152.803301))
sketch11.addConstraint(Sketcher.Constraint("DistanceY", 4, 3, -1, 1, 127.196699))
sketch11.addConstraint(Sketcher.Constraint("DistanceX", 1, 1, 3, 3, 24.192388))
sketch11.addConstraint(Sketcher.Constraint("DistanceX", 0, 1, -1, 1, 14.217514))
pocket5 = body.newObject("PartDesign::Pocket", "Pocket004")
pocket5.Profile = sketch11
pocket5.Type = "ThroughAll"
pocket5.Reversed = True

sketch12 = body.newObject("Sketcher::SketchObject", "Sketch011")
sketch12.AttachmentSupport = (doc.getObject("XY_Plane"), [""])
sketch12.MapMode = "FlatFace"
sketch12.addGeometry(Part.LineSegment(Vector(-160, 145, 0), Vector(-174.5, 145, 0)), False)
sketch12.addGeometry(Part.LineSegment(Vector(-174.5, 145, 0), Vector(-175, 0, 0)), False)
sketch12.addGeometry(Part.LineSegment(Vector(-175, 0, 0), Vector(-170, 0, 0)), False)
sketch12.addGeometry(Part.LineSegment(Vector(-170, 0, 0), Vector(-160, 145, 0)), False)
sketch12.addConstraint(Sketcher.Constraint("Coincident", 0, 2, 1, 1))
sketch12.addConstraint(Sketcher.Constraint("Coincident", 1, 2, 2, 1))
sketch12.addConstraint(Sketcher.Constraint("Coincident", 2, 2, 3, 1))
sketch12.addConstraint(Sketcher.Constraint("Coincident", 3, 2, 0, 1))
sketch12.addConstraint(Sketcher.Constraint("Horizontal", 0))
sketch12.addConstraint(Sketcher.Constraint("Horizontal", 2))
sketch12.addConstraint(Sketcher.Constraint("PointOnObject", 1, 2, -1))
sketch12.addConstraint(Sketcher.Constraint("DistanceX", 2, 1, 2, 2, 5.0))
sketch12.addConstraint(Sketcher.Constraint("DistanceX", 0, 2, 0, 1, 14.5))
sketch12.addConstraint(Sketcher.Constraint("DistanceY", -1, 1, 0, 2, 145.0))
sketch12.addConstraint(Sketcher.Constraint("DistanceX", 1, 2, -1, 1, 175.0))
sketch12.addConstraint(Sketcher.Constraint("DistanceX", 3, 2, -1, 1, 160.0))
revolution = body.newObject("PartDesign::Revolution", "Revolution")
revolution.Profile = sketch12
revolution.ReferenceAxis = (sketch12, ["V_Axis"])
revolution.Angle = 360

sketch13 = body.newObject("Sketcher::SketchObject", "Sketch012")
sketch13.AttachmentSupport = (doc.getObject("XZ_Plane"), [""])
sketch13.MapMode = "FlatFace"
sketch13.AttachmentOffset = App.Placement(Vector(0, 0, -145), App.Rotation())
sketch13.addGeometry(Part.Circle(Vector(170, 0, 0), Vector(0, 0, 1), 2), False)
sketch13.addGeometry(Part.Circle(Vector(-170, 0, 0), Vector(0, 0, 1), 2), False)
sketch13.addGeometry(Part.Circle(Vector(0, -170, 0), Vector(0, 0, 1), 2), False)
sketch13.addGeometry(Part.Circle(Vector(0, 170, 0), Vector(0, 0, 1), 2), False)
sketch13.addConstraint(Sketcher.Constraint("Equal", 0, 1))
sketch13.addConstraint(Sketcher.Constraint("Equal", 1, 2))
sketch13.addConstraint(Sketcher.Constraint("Equal", 2, 3))
sketch13.addConstraint(Sketcher.Constraint("Symmetric", 0, 3, 1, 3, -1, 1))
sketch13.addConstraint(Sketcher.Constraint("Symmetric", 2, 3, 3, 3, -1, 1))
sketch13.addConstraint(Sketcher.Constraint("PointOnObject", 0, 3, -1))
sketch13.addConstraint(Sketcher.Constraint("PointOnObject", 2, 3, -2))
sketch13.addConstraint(Sketcher.Constraint("Diameter", 0, 4.0))
sketch13.addConstraint(Sketcher.Constraint("DistanceX", -1, 1, 0, 3, 170.0))
sketch13.addConstraint(Sketcher.Constraint("DistanceY", 2, 3, -1, 1, 170.0))
pocket6 = body.newObject("PartDesign::Pocket", "Pocket005")
pocket6.Profile = sketch13
pocket6.Length = 5.5
pocket6.Reversed = True

sketch14 = body.newObject("Sketcher::SketchObject", "Sketch013")
sketch14.AttachmentSupport = (doc.getObject("XY_Plane"), [""])
sketch14.MapMode = "FlatFace"
sketch14.AttachmentOffset = App.Placement(Vector(0, 0, -117.5), App.Rotation())
sketch14.addGeometry(Part.LineSegment(Vector(-30, 80, 0), Vector(-30, 50, 0)), False)
sketch14.addGeometry(Part.LineSegment(Vector(-30, 50, 0), Vector(30, 50, 0)), False)
sketch14.addGeometry(Part.LineSegment(Vector(30, 50, 0), Vector(30, 80, 0)), False)
sketch14.addGeometry(Part.LineSegment(Vector(30, 80, 0), Vector(-30, 80, 0)), False)
sketch14.addConstraint(Sketcher.Constraint("Coincident", 0, 2, 1, 1))
sketch14.addConstraint(Sketcher.Constraint("Coincident", 1, 2, 2, 1))
sketch14.addConstraint(Sketcher.Constraint("Coincident", 2, 2, 3, 1))
sketch14.addConstraint(Sketcher.Constraint("Coincident", 3, 2, 0, 1))
sketch14.addConstraint(Sketcher.Constraint("Vertical", 0))
sketch14.addConstraint(Sketcher.Constraint("Horizontal", 1))
sketch14.addConstraint(Sketcher.Constraint("Vertical", 2))
sketch14.addConstraint(Sketcher.Constraint("Horizontal", 3))
sketch14.addConstraint(Sketcher.Constraint("DistanceX", 1, 1, 1, 2, 60.0))
sketch14.addConstraint(Sketcher.Constraint("DistanceY", 0, 2, 0, 1, 30.0))
sketch14.addConstraint(Sketcher.Constraint("DistanceX", 0, 2, -1, 1, 30.0))
sketch14.addConstraint(Sketcher.Constraint("DistanceY", -1, 1, 0, 2, 50.0))
pocket7 = body.newObject("PartDesign::Pocket", "Pocket006")
pocket7.Profile = sketch14
pocket7.Type = "ThroughAll"

doc.recompute()
